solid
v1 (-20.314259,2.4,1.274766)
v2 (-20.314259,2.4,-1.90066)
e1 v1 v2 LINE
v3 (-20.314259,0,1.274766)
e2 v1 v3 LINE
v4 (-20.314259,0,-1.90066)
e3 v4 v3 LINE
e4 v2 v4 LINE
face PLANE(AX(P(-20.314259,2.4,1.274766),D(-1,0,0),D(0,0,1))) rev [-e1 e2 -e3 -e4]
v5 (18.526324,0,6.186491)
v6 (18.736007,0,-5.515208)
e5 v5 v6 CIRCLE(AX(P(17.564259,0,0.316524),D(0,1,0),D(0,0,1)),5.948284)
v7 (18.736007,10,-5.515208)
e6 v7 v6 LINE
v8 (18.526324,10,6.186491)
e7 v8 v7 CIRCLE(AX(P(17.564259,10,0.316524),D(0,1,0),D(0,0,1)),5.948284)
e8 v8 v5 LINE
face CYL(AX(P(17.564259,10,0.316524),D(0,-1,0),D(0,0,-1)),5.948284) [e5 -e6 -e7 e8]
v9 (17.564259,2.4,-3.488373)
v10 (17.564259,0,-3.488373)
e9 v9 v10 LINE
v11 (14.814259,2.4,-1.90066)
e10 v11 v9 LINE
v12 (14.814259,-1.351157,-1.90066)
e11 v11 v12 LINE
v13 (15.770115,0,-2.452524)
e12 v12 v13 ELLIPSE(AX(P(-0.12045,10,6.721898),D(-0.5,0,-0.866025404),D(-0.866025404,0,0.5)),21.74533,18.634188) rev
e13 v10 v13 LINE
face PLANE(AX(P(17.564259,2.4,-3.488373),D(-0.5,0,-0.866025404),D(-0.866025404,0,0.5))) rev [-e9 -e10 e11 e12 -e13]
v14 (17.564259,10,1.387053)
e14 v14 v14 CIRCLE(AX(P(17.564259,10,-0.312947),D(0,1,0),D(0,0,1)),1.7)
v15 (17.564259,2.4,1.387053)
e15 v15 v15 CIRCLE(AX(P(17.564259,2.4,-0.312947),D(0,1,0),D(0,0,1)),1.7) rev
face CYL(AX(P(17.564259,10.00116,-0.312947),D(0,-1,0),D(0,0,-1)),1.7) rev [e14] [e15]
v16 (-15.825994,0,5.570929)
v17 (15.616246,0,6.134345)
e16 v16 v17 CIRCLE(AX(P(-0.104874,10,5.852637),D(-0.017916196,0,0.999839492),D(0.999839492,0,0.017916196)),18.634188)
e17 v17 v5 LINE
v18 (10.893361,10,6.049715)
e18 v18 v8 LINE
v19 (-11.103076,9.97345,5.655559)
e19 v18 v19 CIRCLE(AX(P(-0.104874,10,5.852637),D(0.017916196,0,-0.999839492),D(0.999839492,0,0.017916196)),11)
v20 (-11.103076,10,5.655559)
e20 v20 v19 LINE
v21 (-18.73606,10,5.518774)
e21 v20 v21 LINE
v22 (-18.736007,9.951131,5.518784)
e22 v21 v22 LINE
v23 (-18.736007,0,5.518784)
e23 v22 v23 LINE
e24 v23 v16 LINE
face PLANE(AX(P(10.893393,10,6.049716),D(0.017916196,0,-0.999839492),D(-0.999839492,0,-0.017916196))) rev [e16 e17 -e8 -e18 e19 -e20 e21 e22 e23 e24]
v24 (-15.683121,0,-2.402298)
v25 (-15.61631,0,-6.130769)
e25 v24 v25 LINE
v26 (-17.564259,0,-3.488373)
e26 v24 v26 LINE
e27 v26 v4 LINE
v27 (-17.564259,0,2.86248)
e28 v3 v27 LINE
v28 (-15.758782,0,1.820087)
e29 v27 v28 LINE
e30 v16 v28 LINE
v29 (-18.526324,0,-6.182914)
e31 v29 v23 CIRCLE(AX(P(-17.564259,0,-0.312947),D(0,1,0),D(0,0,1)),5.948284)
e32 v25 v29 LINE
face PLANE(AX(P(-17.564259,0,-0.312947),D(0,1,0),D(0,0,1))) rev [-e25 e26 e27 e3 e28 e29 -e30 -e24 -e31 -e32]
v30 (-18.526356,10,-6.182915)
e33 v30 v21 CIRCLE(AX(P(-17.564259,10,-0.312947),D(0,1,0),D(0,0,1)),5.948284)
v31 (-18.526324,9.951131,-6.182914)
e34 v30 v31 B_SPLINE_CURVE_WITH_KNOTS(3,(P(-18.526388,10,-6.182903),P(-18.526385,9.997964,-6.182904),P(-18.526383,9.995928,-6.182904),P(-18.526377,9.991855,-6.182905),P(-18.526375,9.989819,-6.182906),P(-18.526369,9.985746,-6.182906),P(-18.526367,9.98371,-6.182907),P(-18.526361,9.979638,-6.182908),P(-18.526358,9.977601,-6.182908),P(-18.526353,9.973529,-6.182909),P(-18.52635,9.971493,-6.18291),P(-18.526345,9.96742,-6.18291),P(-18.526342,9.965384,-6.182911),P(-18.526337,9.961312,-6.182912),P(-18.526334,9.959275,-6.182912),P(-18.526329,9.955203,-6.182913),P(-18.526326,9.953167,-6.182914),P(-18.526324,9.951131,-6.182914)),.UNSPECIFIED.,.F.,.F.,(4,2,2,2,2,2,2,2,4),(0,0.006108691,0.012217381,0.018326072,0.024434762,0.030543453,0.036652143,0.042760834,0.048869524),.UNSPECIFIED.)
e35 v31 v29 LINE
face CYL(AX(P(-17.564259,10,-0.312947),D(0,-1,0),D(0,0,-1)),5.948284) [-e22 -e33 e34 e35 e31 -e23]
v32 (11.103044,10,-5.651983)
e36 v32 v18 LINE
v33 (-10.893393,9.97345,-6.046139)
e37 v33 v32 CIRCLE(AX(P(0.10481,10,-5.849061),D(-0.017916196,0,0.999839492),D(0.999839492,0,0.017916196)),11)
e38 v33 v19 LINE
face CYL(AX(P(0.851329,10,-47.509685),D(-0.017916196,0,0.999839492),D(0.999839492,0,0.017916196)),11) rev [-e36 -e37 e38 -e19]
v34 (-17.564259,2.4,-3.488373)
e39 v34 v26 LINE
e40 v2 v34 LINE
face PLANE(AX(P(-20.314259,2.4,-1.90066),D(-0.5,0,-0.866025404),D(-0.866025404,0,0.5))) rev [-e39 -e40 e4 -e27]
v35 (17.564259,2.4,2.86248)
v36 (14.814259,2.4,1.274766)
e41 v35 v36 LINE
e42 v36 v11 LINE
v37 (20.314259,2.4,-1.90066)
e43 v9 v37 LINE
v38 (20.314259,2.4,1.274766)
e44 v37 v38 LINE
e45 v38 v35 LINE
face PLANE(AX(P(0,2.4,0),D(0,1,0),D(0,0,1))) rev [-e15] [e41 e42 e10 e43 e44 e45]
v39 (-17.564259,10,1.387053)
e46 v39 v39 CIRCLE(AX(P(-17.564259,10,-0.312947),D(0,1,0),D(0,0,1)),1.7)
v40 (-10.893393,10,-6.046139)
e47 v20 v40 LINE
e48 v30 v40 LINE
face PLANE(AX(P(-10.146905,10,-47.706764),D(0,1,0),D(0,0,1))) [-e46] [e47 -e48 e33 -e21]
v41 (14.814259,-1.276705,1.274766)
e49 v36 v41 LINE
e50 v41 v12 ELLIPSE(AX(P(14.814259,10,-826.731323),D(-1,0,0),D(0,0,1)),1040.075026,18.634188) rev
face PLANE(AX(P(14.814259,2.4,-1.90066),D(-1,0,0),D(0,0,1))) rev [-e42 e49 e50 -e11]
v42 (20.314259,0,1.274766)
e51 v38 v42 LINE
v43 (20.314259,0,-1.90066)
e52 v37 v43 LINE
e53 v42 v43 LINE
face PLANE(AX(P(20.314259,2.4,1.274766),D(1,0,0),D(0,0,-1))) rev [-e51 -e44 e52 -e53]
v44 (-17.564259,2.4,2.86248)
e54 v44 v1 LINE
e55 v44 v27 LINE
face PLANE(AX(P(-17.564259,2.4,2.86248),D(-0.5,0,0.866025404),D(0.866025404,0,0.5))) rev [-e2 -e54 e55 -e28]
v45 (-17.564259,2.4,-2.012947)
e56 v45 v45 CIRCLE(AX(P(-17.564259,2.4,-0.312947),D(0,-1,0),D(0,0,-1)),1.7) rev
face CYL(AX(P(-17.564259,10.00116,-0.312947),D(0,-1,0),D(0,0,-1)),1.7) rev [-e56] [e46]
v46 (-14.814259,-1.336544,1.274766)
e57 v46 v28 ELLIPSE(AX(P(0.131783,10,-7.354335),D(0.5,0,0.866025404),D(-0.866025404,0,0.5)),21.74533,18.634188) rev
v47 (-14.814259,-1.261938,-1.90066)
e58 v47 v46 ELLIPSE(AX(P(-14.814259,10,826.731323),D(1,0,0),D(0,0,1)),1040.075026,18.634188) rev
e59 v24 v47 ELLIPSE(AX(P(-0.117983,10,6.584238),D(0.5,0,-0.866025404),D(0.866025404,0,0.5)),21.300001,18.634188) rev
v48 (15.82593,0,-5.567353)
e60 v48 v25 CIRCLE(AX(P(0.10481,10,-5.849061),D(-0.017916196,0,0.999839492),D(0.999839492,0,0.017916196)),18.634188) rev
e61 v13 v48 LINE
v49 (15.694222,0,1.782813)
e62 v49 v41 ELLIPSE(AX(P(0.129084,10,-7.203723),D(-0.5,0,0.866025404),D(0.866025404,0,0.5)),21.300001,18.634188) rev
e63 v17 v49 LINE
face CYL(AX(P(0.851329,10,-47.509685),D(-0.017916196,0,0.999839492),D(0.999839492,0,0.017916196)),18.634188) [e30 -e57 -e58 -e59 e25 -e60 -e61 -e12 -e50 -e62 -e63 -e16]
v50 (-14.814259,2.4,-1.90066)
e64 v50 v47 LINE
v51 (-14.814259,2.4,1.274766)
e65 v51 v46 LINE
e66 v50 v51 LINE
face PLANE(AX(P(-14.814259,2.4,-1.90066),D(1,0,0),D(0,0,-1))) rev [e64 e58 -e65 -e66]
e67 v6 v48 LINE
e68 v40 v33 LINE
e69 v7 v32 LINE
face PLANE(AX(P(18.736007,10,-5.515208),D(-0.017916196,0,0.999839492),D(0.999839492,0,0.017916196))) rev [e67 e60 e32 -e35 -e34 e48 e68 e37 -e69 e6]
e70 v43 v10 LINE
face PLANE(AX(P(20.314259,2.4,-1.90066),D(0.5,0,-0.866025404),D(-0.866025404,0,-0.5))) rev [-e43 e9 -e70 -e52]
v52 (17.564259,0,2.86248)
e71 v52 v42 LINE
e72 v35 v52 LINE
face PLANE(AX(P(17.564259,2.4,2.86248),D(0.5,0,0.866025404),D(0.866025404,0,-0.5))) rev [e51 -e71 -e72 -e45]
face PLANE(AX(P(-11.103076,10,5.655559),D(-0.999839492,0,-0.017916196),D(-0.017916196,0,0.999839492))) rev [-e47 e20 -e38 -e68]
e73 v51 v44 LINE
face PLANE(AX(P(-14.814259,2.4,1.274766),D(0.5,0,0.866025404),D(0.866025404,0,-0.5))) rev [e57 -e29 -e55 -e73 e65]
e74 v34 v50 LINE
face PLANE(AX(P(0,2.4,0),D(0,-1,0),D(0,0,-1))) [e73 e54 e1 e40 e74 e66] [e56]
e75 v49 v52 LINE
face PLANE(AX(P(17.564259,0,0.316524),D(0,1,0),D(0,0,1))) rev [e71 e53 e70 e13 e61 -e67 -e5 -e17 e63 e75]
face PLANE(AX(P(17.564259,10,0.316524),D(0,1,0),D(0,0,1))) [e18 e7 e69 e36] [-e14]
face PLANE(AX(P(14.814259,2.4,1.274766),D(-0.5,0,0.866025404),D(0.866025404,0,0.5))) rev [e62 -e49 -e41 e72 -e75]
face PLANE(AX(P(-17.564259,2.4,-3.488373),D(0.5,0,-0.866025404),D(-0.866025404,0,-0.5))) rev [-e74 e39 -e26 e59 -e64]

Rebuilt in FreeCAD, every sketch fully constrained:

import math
import FreeCAD as App
import Part
import Sketcher
Q = App.Units.Quantity


def add_polygon(sketch, points):
    """Adds a closed chain of lines whose ends are joined by coincident constraints."""
    first, n = sketch.GeometryCount, len(points)
    for a, b in zip(points, points[1:] + points[:1]):
        sketch.addGeometry(Part.LineSegment(App.Vector(*a, 0), App.Vector(*b, 0)), False)
    for i in range(n):
        sketch.addConstraint(Sketcher.Constraint("Coincident", first + i, 2, first + (i + 1) % n, 1))

doc = App.newDocument("Part")
body = doc.addObject("PartDesign::Body", "Body")

sketch1 = body.newObject("Sketcher::SketchObject", "Sketch")
sketch1.AttachmentSupport = (doc.getObject("XZ_Plane"), [""])
sketch1.MapMode = "FlatFace"
sketch1.addGeometry([
    Part.LineSegment(App.Vector(11, 6, 0), App.Vector(19, 6, 0)),
    Part.ArcOfCircle(Part.Circle(App.Vector(18, 0, 0), App.Vector(0, 0, 1), 6), math.radians(-79), math.radians(81)),
    Part.LineSegment(App.Vector(19, -6, 0), App.Vector(11, -6, 0)),
    Part.LineSegment(App.Vector(11, -6, 0), App.Vector(11, 6, 0)),
], False)
sketch1.addConstraint([
    Sketcher.Constraint("Coincident", 0, 2, 1, 2),
    Sketcher.Constraint("Coincident", 1, 1, 2, 1),
    Sketcher.Constraint("Coincident", 2, 2, 3, 1),
    Sketcher.Constraint("Coincident", 3, 2, 0, 1),
    Sketcher.Constraint("Parallel", 0, 2),
    Sketcher.Constraint("Perpendicular", 2, 3),
    Sketcher.Constraint("Equal", 0, 2),
    Sketcher.Constraint("Radius", 1, Q("5.948284 mm")),
    Sketcher.Constraint("DistanceY", 1, 1, 0, 2, Q("11.701698 mm")),
    Sketcher.Constraint("DistanceX", -1, 1, 1, 3, Q("17.564259 mm")),
    Sketcher.Constraint("DistanceY", -1, 1, 0, 2, Q("6.186491 mm")),
    Sketcher.Constraint("DistanceX", 1, 3, 1, 1, Q("1.171749 mm")),
    Sketcher.Constraint("DistanceX", 2, 2, 1, 1, Q("7.632931 mm")),
])
pad1 = body.newObject("PartDesign::Pad", "Pad")
pad1.Profile = sketch1
pad1.Length = 10
pad1.Reversed = True
body2 = doc.addObject("PartDesign::Body", "Body001")

sketch2 = body2.newObject("Sketcher::SketchObject", "Sketch001")
sketch2.AttachmentSupport = (doc.getObject("XZ_Plane001"), [""])
sketch2.MapMode = "FlatFace"
sketch2.addGeometry([
    Part.LineSegment(App.Vector(-11, -6, 0), App.Vector(-19, -6, 0)),
    Part.ArcOfCircle(Part.Circle(App.Vector(-18, 0, 0), App.Vector(0, 0, 1), 6), math.radians(101), math.radians(261)),
    Part.LineSegment(App.Vector(-19, 6, 0), App.Vector(-11, 6, 0)),
    Part.LineSegment(App.Vector(-11, 6, 0), App.Vector(-11, -6, 0)),
], False)
sketch2.addConstraint([
    Sketcher.Constraint("Coincident", 0, 2, 1, 2),
    Sketcher.Constraint("Coincident", 1, 1, 2, 1),
    Sketcher.Constraint("Coincident", 2, 2, 3, 1),
    Sketcher.Constraint("Coincident", 3, 2, 0, 1),
    Sketcher.Constraint("Parallel", 0, 2),
    Sketcher.Constraint("Perpendicular", 2, 3),
    Sketcher.Constraint("Equal", 0, 2),
    Sketcher.Constraint("Radius", 1, Q("5.948284 mm")),
    Sketcher.Constraint("DistanceY", 0, 2, 1, 1, Q("11.701698 mm")),
    Sketcher.Constraint("DistanceX", 1, 3, -1, 1, Q("17.564259 mm")),
    Sketcher.Constraint("DistanceY", -1, 1, 2, 2, Q("5.655559 mm")),
    Sketcher.Constraint("DistanceX", 1, 1, 1, 3, Q("1.171749 mm")),
    Sketcher.Constraint("DistanceX", 1, 1, 2, 2, Q("7.632931 mm")),
])
pad2 = body2.newObject("PartDesign::Pad", "Pad001")
pad2.Profile = sketch2
pad2.Length = 10
pad2.Reversed = True
body.AllowCompound = True
doc.recompute()

boolean = body.newObject("PartDesign::Boolean", "Boolean")
boolean.Type = "Fuse"
boolean.addObjects([body2])

sketch3 = body.newObject("Sketcher::SketchObject", "Sketch002")
sketch3.Placement = App.Placement(App.Vector(-0.104874, 0, 5.852637), App.Rotation(App.Vector(0.999839492, 0, 0.017916196), App.Vector(0, 1, 0), App.Vector(-0.017916196, 0, 0.999839492), "ZXY"))
sketch3.addGeometry([
    Part.LineSegment(App.Vector(-11, 10, 0), App.Vector(-19, 10, 0)),
    Part.ArcOfCircle(Part.Circle(App.Vector(0, 10, 0), App.Vector(0, 0, 1), 19), math.radians(180), math.radians(360)),
    Part.LineSegment(App.Vector(19, 10, 0), App.Vector(11, 10, 0)),
    Part.ArcOfCircle(Part.Circle(App.Vector(0, 10, 0), App.Vector(0, 0, 1), 11), math.radians(180), math.radians(360)),
], False)
sketch3.addConstraint([
    Sketcher.Constraint("Coincident", 0, 2, 1, 1),
    Sketcher.Constraint("Coincident", 1, 2, 2, 1),
    Sketcher.Constraint("Coincident", 2, 2, 3, 2),
    Sketcher.Constraint("Coincident", 3, 1, 0, 1),
    Sketcher.Constraint("Horizontal", 0),
    Sketcher.Constraint("Horizontal", 2),
    Sketcher.Constraint("Coincident", 3, 3, 1, 3),
    Sketcher.Constraint("Symmetric", 0, 2, 1, 2, -2),
    Sketcher.Constraint("Horizontal", 3, 3, 0, 2),
    Sketcher.Constraint("Radius", 3, Q("11 mm")),
    Sketcher.Constraint("DistanceY", -1, 1, 1, 3, Q("10 mm")),
    Sketcher.Constraint("Radius", 1, Q("18.634188 mm")),
])
pad3 = body.newObject("PartDesign::Pad", "Pad002")
pad3.Profile = sketch3
pad3.Length = 11.703577
pad3.Reversed = True

sketch4 = body.newObject("Sketcher::SketchObject", "Sketch003")
sketch4.AttachmentSupport = (doc.getObject("XZ_Plane"), [""])
sketch4.MapMode = "FlatFace"
sketch4.addGeometry([
    Part.Circle(App.Vector(-17.6, -0.3, 0), App.Vector(0, 0, 1), 1.7),
    Part.Circle(App.Vector(17.6, -0.3, 0), App.Vector(0, 0, 1), 1.7),
], False)
sketch4.addConstraint([
    Sketcher.Constraint("Equal", 0, 1),
    Sketcher.Constraint("Symmetric", 0, 3, 1, 3, -2),
    Sketcher.Constraint("Diameter", 0, Q("3.4 mm")),
    Sketcher.Constraint("DistanceX", 0, 3, -1, 1, Q("17.564259 mm")),
    Sketcher.Constraint("DistanceY", 0, 3, -1, 1, Q("0.312947 mm")),
])
pocket1 = body.newObject("PartDesign::Pocket", "Pocket")
pocket1.Profile = sketch4
pocket1.Type = "ThroughAll"

sketch5 = body.newObject("Sketcher::SketchObject", "Sketch004")
sketch5.AttachmentSupport = (doc.getObject("XZ_Plane"), [""])
sketch5.MapMode = "FlatFace"
add_polygon(sketch5, [(17.6, -3.5), (20.3, -1.9), (20.3, 1.3), (17.6, 2.9), (14.8, 1.3), (14.8, -1.9)])
add_polygon(sketch5, [(-17.6, -3.5), (-14.8, -1.9), (-14.8, 1.3), (-17.6, 2.9), (-20.3, 1.3), (-20.3, -1.9)])
sketch5.addConstraint([
    Sketcher.Constraint("Vertical", 1),
    Sketcher.Constraint("Vertical", 4),
    Sketcher.Constraint("Vertical", 7),
    Sketcher.Constraint("Vertical", 10),
    Sketcher.Constraint("Symmetric", 4, 2, 6, 2, -2),
    Sketcher.Constraint("Symmetric", 2, 2, 8, 2, -2),
    Sketcher.Constraint("Symmetric", 1, 2, 9, 2, -2),
    Sketcher.Constraint("Symmetric", 5, 2, 11, 2, -2),
    Sketcher.Constraint("Parallel", 0, 3),
    Sketcher.Constraint("Parallel", 2, 5),
    Sketcher.Constraint("Parallel", 3, 6),
    Sketcher.Constraint("Parallel", 5, 8),
    Sketcher.Constraint("Parallel", 8, 11),
    Sketcher.Constraint("Horizontal", 1, 2, 3, 2),
    Sketcher.Constraint("Horizontal", 0, 2, 4, 2),
    Sketcher.Constraint("Angle", 0, Q("30 deg")),
    Sketcher.Constraint("DistanceX", 3, 2, 1, 2, Q("5.5 mm")),
    Sketcher.Constraint("DistanceY", 1, 1, 1, 2, Q("3.175426 mm")),
    Sketcher.Constraint("DistanceX", -1, 1, 0, 2, Q("20.314259 mm")),
    Sketcher.Constraint("DistanceY", 0, 2, -1, 1, Q("1.90066 mm")),
])
pocket2 = body.newObject("PartDesign::Pocket", "Pocket001")
pocket2.Profile = sketch5
pocket2.Length = 4.8
pocket2.Midplane = True

doc.recompute()
